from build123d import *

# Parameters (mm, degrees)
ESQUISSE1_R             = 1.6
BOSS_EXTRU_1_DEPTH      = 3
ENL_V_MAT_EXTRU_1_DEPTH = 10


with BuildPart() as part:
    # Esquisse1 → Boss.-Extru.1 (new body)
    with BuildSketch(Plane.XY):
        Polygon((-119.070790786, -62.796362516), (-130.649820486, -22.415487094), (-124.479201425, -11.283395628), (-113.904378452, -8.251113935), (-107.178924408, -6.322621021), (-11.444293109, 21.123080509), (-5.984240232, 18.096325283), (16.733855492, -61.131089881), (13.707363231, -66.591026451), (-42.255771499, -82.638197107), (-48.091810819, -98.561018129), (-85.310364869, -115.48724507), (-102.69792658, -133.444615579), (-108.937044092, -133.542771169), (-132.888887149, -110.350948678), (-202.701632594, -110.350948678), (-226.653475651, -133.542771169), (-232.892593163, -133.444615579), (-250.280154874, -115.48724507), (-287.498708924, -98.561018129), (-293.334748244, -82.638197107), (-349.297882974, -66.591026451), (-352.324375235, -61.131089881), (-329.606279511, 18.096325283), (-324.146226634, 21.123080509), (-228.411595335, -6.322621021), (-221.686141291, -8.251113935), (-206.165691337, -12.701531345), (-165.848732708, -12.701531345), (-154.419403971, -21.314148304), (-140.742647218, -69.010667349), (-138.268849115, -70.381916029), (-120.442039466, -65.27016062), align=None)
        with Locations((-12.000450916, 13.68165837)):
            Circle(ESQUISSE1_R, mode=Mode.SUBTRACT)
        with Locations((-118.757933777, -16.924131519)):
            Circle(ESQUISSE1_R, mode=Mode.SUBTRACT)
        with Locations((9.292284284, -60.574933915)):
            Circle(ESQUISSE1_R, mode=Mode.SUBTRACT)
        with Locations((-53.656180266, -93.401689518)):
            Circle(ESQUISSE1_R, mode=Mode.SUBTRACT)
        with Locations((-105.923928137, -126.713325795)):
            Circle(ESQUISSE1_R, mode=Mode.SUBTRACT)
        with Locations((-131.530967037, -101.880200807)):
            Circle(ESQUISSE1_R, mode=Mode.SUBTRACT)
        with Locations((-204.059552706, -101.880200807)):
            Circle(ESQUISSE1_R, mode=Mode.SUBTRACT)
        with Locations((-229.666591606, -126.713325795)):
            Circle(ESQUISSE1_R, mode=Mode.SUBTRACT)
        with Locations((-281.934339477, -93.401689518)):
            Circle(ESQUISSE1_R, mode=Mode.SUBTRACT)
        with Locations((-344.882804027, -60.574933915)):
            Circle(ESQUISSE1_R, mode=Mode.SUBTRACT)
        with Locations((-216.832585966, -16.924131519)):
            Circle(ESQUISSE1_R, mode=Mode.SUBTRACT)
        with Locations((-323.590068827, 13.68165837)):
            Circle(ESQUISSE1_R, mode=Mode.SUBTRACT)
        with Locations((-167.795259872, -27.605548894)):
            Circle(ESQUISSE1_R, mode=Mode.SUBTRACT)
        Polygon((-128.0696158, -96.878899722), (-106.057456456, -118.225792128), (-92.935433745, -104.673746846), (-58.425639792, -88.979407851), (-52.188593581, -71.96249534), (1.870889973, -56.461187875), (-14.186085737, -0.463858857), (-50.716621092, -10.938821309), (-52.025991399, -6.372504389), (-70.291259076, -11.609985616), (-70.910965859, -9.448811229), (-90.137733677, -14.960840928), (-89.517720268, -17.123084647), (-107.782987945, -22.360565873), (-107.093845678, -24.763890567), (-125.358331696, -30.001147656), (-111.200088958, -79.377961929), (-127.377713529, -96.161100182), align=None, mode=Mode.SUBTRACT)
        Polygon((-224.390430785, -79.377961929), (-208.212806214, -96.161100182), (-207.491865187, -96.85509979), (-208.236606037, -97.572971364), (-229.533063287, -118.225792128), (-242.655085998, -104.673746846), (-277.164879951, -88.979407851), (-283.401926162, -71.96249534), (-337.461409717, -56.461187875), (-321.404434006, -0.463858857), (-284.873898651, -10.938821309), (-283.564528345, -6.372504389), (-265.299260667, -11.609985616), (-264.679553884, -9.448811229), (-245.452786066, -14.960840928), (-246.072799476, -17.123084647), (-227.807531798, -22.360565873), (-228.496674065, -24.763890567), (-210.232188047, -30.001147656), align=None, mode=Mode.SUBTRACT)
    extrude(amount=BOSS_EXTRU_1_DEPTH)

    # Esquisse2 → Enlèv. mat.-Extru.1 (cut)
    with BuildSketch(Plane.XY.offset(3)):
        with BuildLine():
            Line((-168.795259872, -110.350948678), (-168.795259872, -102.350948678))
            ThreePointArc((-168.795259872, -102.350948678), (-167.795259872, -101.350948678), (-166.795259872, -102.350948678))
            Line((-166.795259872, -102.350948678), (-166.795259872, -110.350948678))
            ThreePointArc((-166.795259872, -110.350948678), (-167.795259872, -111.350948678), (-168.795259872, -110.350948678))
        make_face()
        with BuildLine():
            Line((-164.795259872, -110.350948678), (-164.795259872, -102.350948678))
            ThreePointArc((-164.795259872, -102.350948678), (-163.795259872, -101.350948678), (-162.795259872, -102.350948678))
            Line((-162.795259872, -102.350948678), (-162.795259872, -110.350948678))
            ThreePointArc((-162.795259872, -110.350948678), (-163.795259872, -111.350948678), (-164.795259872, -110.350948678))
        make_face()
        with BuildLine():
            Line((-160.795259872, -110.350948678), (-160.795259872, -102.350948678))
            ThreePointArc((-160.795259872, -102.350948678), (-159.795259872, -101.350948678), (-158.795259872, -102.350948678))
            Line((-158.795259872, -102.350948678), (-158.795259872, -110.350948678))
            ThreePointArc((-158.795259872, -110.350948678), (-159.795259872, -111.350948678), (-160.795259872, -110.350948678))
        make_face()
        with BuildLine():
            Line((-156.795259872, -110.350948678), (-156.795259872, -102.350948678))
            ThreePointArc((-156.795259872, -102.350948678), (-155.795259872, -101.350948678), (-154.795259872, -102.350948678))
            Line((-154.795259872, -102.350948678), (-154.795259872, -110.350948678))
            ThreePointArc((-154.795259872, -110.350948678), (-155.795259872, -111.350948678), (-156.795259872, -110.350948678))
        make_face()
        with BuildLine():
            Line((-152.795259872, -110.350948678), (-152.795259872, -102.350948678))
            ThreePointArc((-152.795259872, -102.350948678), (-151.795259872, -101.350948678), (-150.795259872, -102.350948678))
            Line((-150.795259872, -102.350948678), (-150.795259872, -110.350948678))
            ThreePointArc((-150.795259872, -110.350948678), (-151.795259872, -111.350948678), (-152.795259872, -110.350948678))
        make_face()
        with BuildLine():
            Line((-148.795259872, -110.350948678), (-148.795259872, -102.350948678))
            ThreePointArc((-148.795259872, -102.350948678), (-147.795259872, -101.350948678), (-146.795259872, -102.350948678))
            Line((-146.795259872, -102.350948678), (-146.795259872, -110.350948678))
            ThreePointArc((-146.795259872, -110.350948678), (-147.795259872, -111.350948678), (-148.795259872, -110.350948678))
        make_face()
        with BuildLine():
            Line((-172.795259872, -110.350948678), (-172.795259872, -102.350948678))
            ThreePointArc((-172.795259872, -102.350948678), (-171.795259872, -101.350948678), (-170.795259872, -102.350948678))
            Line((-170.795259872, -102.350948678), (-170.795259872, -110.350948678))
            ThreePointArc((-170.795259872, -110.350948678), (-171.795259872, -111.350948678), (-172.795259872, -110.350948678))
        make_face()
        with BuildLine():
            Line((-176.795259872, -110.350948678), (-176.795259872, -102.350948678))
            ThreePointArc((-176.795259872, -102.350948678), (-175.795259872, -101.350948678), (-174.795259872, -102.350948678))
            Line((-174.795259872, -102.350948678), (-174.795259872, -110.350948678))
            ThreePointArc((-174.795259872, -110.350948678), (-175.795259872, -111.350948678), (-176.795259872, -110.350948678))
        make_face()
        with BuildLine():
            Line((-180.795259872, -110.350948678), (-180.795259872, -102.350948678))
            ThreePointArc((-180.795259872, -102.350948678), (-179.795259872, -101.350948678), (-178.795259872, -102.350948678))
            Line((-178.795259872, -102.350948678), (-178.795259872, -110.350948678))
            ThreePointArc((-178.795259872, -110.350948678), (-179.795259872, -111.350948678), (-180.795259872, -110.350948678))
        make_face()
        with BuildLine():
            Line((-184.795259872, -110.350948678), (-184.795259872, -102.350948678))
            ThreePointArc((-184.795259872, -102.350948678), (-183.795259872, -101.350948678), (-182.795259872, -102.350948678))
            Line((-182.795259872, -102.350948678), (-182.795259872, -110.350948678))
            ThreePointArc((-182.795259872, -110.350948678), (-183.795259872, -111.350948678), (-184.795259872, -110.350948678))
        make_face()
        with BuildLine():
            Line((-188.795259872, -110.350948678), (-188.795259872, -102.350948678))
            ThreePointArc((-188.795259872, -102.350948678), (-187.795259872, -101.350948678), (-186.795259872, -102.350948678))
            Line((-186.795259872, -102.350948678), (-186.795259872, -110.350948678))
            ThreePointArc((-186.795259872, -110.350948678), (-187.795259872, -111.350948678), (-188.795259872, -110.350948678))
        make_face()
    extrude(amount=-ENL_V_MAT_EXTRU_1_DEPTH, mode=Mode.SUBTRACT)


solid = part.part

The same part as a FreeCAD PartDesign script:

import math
import FreeCAD as App
import Part
import Sketcher
from FreeCAD import Vector
Q = App.Units.Quantity


def add_polygon(sketch, points):
    """Adds a closed chain of lines whose ends are joined by coincident constraints."""
    first, n = sketch.GeometryCount, len(points)
    for a, b in zip(points, points[1:] + points[:1]):
        sketch.addGeometry(Part.LineSegment(App.Vector(*a, 0), App.Vector(*b, 0)), False)
    for i in range(n):
        sketch.addConstraint(Sketcher.Constraint("Coincident", first + i, 2, first + (i + 1) % n, 1))

doc = App.newDocument("Part")
body = doc.addObject("PartDesign::Body", "Body")

# Sketch on XY plane
sketch1 = body.newObject("Sketcher::SketchObject", "Sketch")
sketch1.AttachmentSupport = (doc.getObject("XY_Plane"), [""])
sketch1.MapMode = "FlatFace"
add_polygon(sketch1, [(-130.6, -22.4), (-119.1, -62.8), (-120.4, -65.3), (-138.3, -70.4), (-140.7, -69), (-154.4, -21.3), (-165.8, -12.7), (-206.2, -12.7), (-221.7, -8.3), (-228.4, -6.3), (-324.1, 21.1), (-329.6, 18.1), (-352.3, -61.1), (-349.3, -66.6), (-293.3, -82.6), (-287.5, -98.6), (-250.3, -115.5), (-232.9, -133.4), (-226.7, -133.5), (-202.7, -110.4), (-132.9, -110.4), (-108.9, -133.5), (-102.7, -133.4), (-85.3, -115.5), (-48.1, -98.6), (-42.3, -82.6), (13.7, -66.6), (16.7, -61.1), (-6, 18.1), (-11.4, 21.1), (-107.2, -6.3), (-113.9, -8.3), (-124.5, -11.3)])  # lines 0-32
sketch1.addGeometry(Part.Circle(Vector(-53.7, -93.4, 0), Vector(0, 0, 1), 1.6), False)  # 33
sketch1.addGeometry(Part.Circle(Vector(-105.9, -126.7, 0), Vector(0, 0, 1), 1.6), False)  # 34
sketch1.addGeometry(Part.Circle(Vector(-131.5, -101.9, 0), Vector(0, 0, 1), 1.6), False)  # 35
sketch1.addGeometry(Part.Circle(Vector(9.3, -60.6, 0), Vector(0, 0, 1), 1.6), False)  # 36
add_polygon(sketch1, [(-128.1, -96.9), (-127.4, -96.2), (-111.2, -79.4), (-125.4, -30), (-107.1, -24.8), (-107.8, -22.4), (-89.5, -17.1), (-90.1, -15), (-70.9, -9.4), (-70.3, -11.6), (-52, -6.4), (-50.7, -10.9), (-14.2, -0.5), (1.9, -56.5), (-52.2, -72), (-58.4, -89), (-92.9, -104.7), (-106.1, -118.2)])  # lines 37-54
sketch1.addGeometry(Part.Circle(Vector(-229.7, -126.7, 0), Vector(0, 0, 1), 1.6), False)  # 55
sketch1.addGeometry(Part.Circle(Vector(-204.1, -101.9, 0), Vector(0, 0, 1), 1.6), False)  # 56
sketch1.addGeometry(Part.Circle(Vector(-281.9, -93.4, 0), Vector(0, 0, 1), 1.6), False)  # 57
add_polygon(sketch1, [(-224.4, -79.4), (-208.2, -96.2), (-207.5, -96.9), (-208.2, -97.6), (-229.5, -118.2), (-242.7, -104.7), (-277.2, -89), (-283.4, -72), (-337.5, -56.5), (-321.4, -0.5), (-284.9, -10.9), (-283.6, -6.4), (-265.3, -11.6), (-264.7, -9.4), (-245.5, -15), (-246.1, -17.1), (-227.8, -22.4), (-228.5, -24.8), (-210.2, -30)])  # lines 58-76
sketch1.addGeometry(Part.Circle(Vector(-344.9, -60.6, 0), Vector(0, 0, 1), 1.6), False)  # 77
sketch1.addGeometry(Part.Circle(Vector(-12, 13.7, 0), Vector(0, 0, 1), 1.6), False)  # 78
sketch1.addGeometry(Part.Circle(Vector(-118.8, -16.9, 0), Vector(0, 0, 1), 1.6), False)  # 79
sketch1.addGeometry(Part.Circle(Vector(-167.8, -27.6, 0), Vector(0, 0, 1), 1.6), False)  # 80
sketch1.addGeometry(Part.Circle(Vector(-216.8, -16.9, 0), Vector(0, 0, 1), 1.6), False)  # 81
sketch1.addGeometry(Part.Circle(Vector(-323.6, 13.7, 0), Vector(0, 0, 1), 1.6), False)  # 82
sketch1.addConstraint([
    Sketcher.Constraint("Horizontal", 6),
    Sketcher.Constraint("Horizontal", 19),
    Sketcher.Constraint("Equal", 33, 34),
    Sketcher.Constraint("Equal", 34, 35),
    Sketcher.Constraint("Equal", 35, 36),
    Sketcher.Constraint("Equal", 36, 55),
    Sketcher.Constraint("Equal", 55, 56),
    Sketcher.Constraint("Equal", 56, 57),
    Sketcher.Constraint("Equal", 57, 77),
    Sketcher.Constraint("Equal", 77, 78),
    Sketcher.Constraint("Equal", 78, 79),
    Sketcher.Constraint("Equal", 79, 80),
    Sketcher.Constraint("Equal", 80, 81),
    Sketcher.Constraint("Equal", 81, 82),
    Sketcher.Constraint("Perpendicular", 0, 2),
    Sketcher.Constraint("Perpendicular", 1, 3),
    Sketcher.Constraint("Perpendicular", 2, 4),
    Sketcher.Constraint("Parallel", 7, 8),
    Sketcher.Constraint("Perpendicular", 8, 11),
    Sketcher.Constraint("Perpendicular", 11, 13),
    Sketcher.Constraint("Perpendicular", 16, 18),
    Sketcher.Constraint("Perpendicular", 20, 22),
    Sketcher.Constraint("Perpendicular", 4, 25),
    Sketcher.Constraint("Perpendicular", 3, 26),
    Sketcher.Constraint("Perpendicular", 25, 27),
    Sketcher.Constraint("Perpendicular", 27, 30),
    Sketcher.Constraint("Parallel", 30, 31),
    Sketcher.Constraint("Parallel", 26, 32),
    Sketcher.Constraint("Parallel", 37, 38),
    Sketcher.Constraint("Parallel", 31, 40),
    Sketcher.Constraint("Perpendicular", 40, 41),
    Sketcher.Constraint("Perpendicular", 41, 42),
    Sketcher.Constraint("Perpendicular", 42, 43),
    Sketcher.Constraint("Parallel", 29, 44),
    Sketcher.Constraint("Parallel", 43, 45),
    Sketcher.Constraint("Perpendicular", 45, 46),
    Sketcher.Constraint("Perpendicular", 46, 47),
    Sketcher.Constraint("Perpendicular", 47, 48),
    Sketcher.Constraint("Perpendicular", 48, 49),
    Sketcher.Constraint("Perpendicular", 49, 50),
    Sketcher.Constraint("Parallel", 24, 51),
    Sketcher.Constraint("Parallel", 23, 52),
    Sketcher.Constraint("Parallel", 22, 53),
    Sketcher.Constraint("Perpendicular", 58, 60),
    Sketcher.Constraint("Perpendicular", 18, 62),
    Sketcher.Constraint("Parallel", 15, 63),
    Sketcher.Constraint("Parallel", 14, 64),
    Sketcher.Constraint("Parallel", 13, 65),
    Sketcher.Constraint("Perpendicular", 65, 66),
    Sketcher.Constraint("Perpendicular", 66, 67),
    Sketcher.Constraint("Perpendicular", 67, 68),
    Sketcher.Constraint("Perpendicular", 68, 69),
    Sketcher.Constraint("Perpendicular", 69, 70),
    Sketcher.Constraint("Parallel", 9, 71),
    Sketcher.Constraint("Parallel", 70, 72),
    Sketcher.Constraint("Perpendicular", 72, 73),
    Sketcher.Constraint("Perpendicular", 73, 74),
    Sketcher.Constraint("Perpendicular", 74, 75),
    Sketcher.Constraint("Horizontal", 34, 3, 55, 3),
    Sketcher.Constraint("Horizontal", 35, 3, 56, 3),
    Sketcher.Constraint("Horizontal", 33, 3, 57, 3),
    Sketcher.Constraint("Horizontal", 36, 3, 77, 3),
    Sketcher.Constraint("Horizontal", 79, 3, 81, 3),
    Sketcher.Constraint("Horizontal", 78, 3, 82, 3),
    Sketcher.Constraint("Horizontal", 17, 2, 20, 2),
    Sketcher.Constraint("Horizontal", 16, 2, 21, 2),
    Sketcher.Constraint("Horizontal", 15, 2, 22, 2),
    Sketcher.Constraint("Horizontal", 14, 2, 23, 2),
    Sketcher.Constraint("Horizontal", 13, 2, 24, 2),
    Sketcher.Constraint("Horizontal", 12, 2, 25, 2),
    Sketcher.Constraint("Horizontal", 11, 2, 26, 2),
    Sketcher.Constraint("Horizontal", 10, 2, 27, 2),
    Sketcher.Constraint("Horizontal", 9, 2, 28, 2),
    Sketcher.Constraint("Horizontal", 8, 2, 29, 2),
    Sketcher.Constraint("Horizontal", 7, 2, 30, 2),
    Sketcher.Constraint("Horizontal", 37, 2, 58, 2),
    Sketcher.Constraint("Horizontal", 53, 2, 61, 2),
    Sketcher.Constraint("Horizontal", 52, 2, 62, 2),
    Sketcher.Constraint("Horizontal", 51, 2, 63, 2),
    Sketcher.Constraint("Horizontal", 50, 2, 64, 2),
    Sketcher.Constraint("Horizontal", 49, 2, 65, 2),
    Sketcher.Constraint("Horizontal", 48, 2, 66, 2),
    Sketcher.Constraint("Horizontal", 47, 2, 67, 2),
    Sketcher.Constraint("Horizontal", 46, 2, 68, 2),
    Sketcher.Constraint("Horizontal", 45, 2, 69, 2),
    Sketcher.Constraint("Horizontal", 44, 2, 70, 2),
    Sketcher.Constraint("Horizontal", 43, 2, 71, 2),
    Sketcher.Constraint("Horizontal", 42, 2, 72, 2),
    Sketcher.Constraint("Horizontal", 41, 2, 73, 2),
    Sketcher.Constraint("Horizontal", 40, 2, 74, 2),
    Sketcher.Constraint("Horizontal", 39, 2, 75, 2),
    Sketcher.Constraint("Horizontal", 38, 2, 76, 2),
    Sketcher.Constraint("Equal", 1, 3),
    Sketcher.Constraint("Equal", 18, 20),
    Sketcher.Constraint("Equal", 17, 21),
    Sketcher.Constraint("Equal", 15, 23),
    Sketcher.Constraint("Equal", 14, 24),
    Sketcher.Constraint("Equal", 13, 25),
    Sketcher.Constraint("Equal", 12, 26),
    Sketcher.Constraint("Equal", 10, 28),
    Sketcher.Constraint("Equal", 9, 29),
    Sketcher.Constraint("Equal", 42, 46),
    Sketcher.Constraint("Equal", 38, 58),
    Sketcher.Constraint("Equal", 39, 76),
    Sketcher.Constraint("Diameter", 33, Q("3.2 mm")),
    Sketcher.Constraint("Angle", 0, Q("-74 deg")),
    Sketcher.Constraint("Angle", 1, Q("-119 deg")),
    Sketcher.Constraint("Angle", 5, Q("143 deg")),
    Sketcher.Constraint("Distance", 0, Q("42.008202 mm")),
    Sketcher.Constraint("DistanceX", 6, 2, 6, 1, Q("40.316959 mm")),
    Sketcher.Constraint("DistanceY", 35, 3, -1, 1, Q("101.880201 mm")),
    Sketcher.Constraint("DistanceX", 31, 2, -1, 1, Q("124.479201 mm")),
    Sketcher.Constraint("DistanceY", 37, 2, -1, 1, Q("96.1611 mm")),
    Sketcher.Constraint("DistanceY", 54, 2, -1, 1, Q("96.8789 mm")),
    Sketcher.Constraint("DistanceY", 59, 2, -1, 1, Q("96.8551 mm")),
    Sketcher.Constraint("DistanceX", 67, 2, -1, 1, Q("284.873899 mm")),
    Sketcher.Constraint("DistanceX", 72, 2, -1, 1, Q("246.072799 mm")),
    Sketcher.Constraint("Distance", 2, Q("18.54522 mm")),
    Sketcher.Constraint("Distance", 4, Q("49.618662 mm")),
    Sketcher.Constraint("Distance", 5, Q("14.31107 mm")),
    Sketcher.Constraint("Distance", 10, Q("6.24287 mm")),
    Sketcher.Constraint("Distance", 12, Q("6.242641 mm")),
    Sketcher.Constraint("Distance", 16, Q("24.995889 mm")),
    Sketcher.Constraint("Distance", 17, Q("6.23989 mm")),
    Sketcher.Constraint("Distance", 38, Q("23.310711 mm")),
    Sketcher.Constraint("Distance", 39, Q("51.366581 mm")),
    Sketcher.Constraint("Distance", 43, Q("2.249381 mm")),
    Sketcher.Constraint("Distance", 45, Q("2.248268 mm")),
    Sketcher.Constraint("Distance", 49, Q("58.25399 mm")),
    Sketcher.Constraint("Distance", 50, Q("56.23805 mm")),
    Sketcher.Constraint("Distance", 51, Q("18.123908 mm")),
    Sketcher.Constraint("Distance", 54, Q("30.663088 mm")),
    Sketcher.Constraint("Distance", 61, Q("29.66611 mm")),
    Sketcher.Constraint("DistanceX", 19, 1, 19, 2, Q("69.812745 mm")),
    Sketcher.Constraint("DistanceX", 33, 3, -1, 1, Q("53.65618 mm")),
    Sketcher.Constraint("DistanceY", 33, 3, -1, 1, Q("93.40169 mm")),
    Sketcher.Constraint("DistanceX", 34, 3, -1, 1, Q("105.923928 mm")),
    Sketcher.Constraint("DistanceX", 55, 3, -1, 1, Q("229.666592 mm")),
    Sketcher.Constraint("DistanceX", 57, 3, -1, 1, Q("281.934339 mm")),
    Sketcher.Constraint("DistanceX", 78, 3, -1, 1, Q("12.000451 mm")),
    Sketcher.Constraint("DistanceY", -1, 1, 78, 3, Q("13.681658 mm")),
    Sketcher.Constraint("DistanceY", 79, 3, -1, 1, Q("16.924132 mm")),
    Sketcher.Constraint("DistanceX", 80, 3, -1, 1, Q("167.79526 mm")),
    Sketcher.Constraint("DistanceY", 80, 3, -1, 1, Q("27.605549 mm")),
    Sketcher.Constraint("DistanceX", 82, 3, -1, 1, Q("323.590069 mm")),
    Sketcher.Constraint("DistanceX", 0, 2, -1, 1, Q("119.070791 mm")),
    Sketcher.Constraint("DistanceX", 1, 2, -1, 1, Q("120.442039 mm")),
    Sketcher.Constraint("DistanceY", 1, 2, -1, 1, Q("65.270161 mm")),
    Sketcher.Constraint("DistanceX", 7, 2, -1, 1, Q("221.686141 mm")),
    Sketcher.Constraint("DistanceY", 8, 2, -1, 1, Q("6.322621 mm")),
    Sketcher.Constraint("DistanceY", -1, 1, 9, 2, Q("21.123081 mm")),
    Sketcher.Constraint("DistanceX", 10, 2, -1, 1, Q("329.60628 mm")),
    Sketcher.Constraint("DistanceY", 11, 2, -1, 1, Q("61.13109 mm")),
    Sketcher.Constraint("DistanceX", 13, 2, -1, 1, Q("293.334748 mm")),
    Sketcher.Constraint("DistanceX", 14, 2, -1, 1, Q("287.498709 mm")),
    Sketcher.Constraint("DistanceY", 14, 2, -1, 1, Q("98.561018 mm")),
    Sketcher.Constraint("DistanceY", 17, 2, -1, 1, Q("133.542771 mm")),
    Sketcher.Constraint("DistanceY", 18, 2, -1, 1, Q("110.350949 mm")),
    Sketcher.Constraint("DistanceX", 38, 2, -1, 1, Q("111.200089 mm")),
    Sketcher.Constraint("DistanceY", 38, 2, -1, 1, Q("79.377962 mm")),
    Sketcher.Constraint("DistanceX", 39, 2, -1, 1, Q("125.358332 mm")),
    Sketcher.Constraint("DistanceY", 40, 2, -1, 1, Q("24.763891 mm")),
    Sketcher.Constraint("DistanceX", 42, 2, -1, 1, Q("89.51772 mm")),
    Sketcher.Constraint("DistanceY", 43, 2, -1, 1, Q("14.960841 mm")),
    Sketcher.Constraint("DistanceY", 44, 2, -1, 1, Q("9.448811 mm")),
    Sketcher.Constraint("DistanceX", 45, 2, -1, 1, Q("70.291259 mm")),
    Sketcher.Constraint("DistanceY", 48, 2, -1, 1, Q("0.463859 mm")),
    Sketcher.Constraint("DistanceY", 60, 2, -1, 1, Q("97.572971 mm")),
    Sketcher.Constraint("Distance", 15, Q("40.886647 mm")),
    Sketcher.Constraint("Distance", 18, Q("33.339937 mm")),
    Sketcher.Constraint("Distance", 53, Q("18.863865 mm")),
    Sketcher.Constraint("DistanceY", 34, 3, -1, 1, Q("126.713326 mm")),
    Sketcher.Constraint("DistanceX", 35, 3, -1, 1, Q("131.530967 mm")),
    Sketcher.Constraint("DistanceX", -1, 1, 36, 3, Q("9.292284 mm")),
    Sketcher.Constraint("DistanceY", 36, 3, -1, 1, Q("60.574934 mm")),
    Sketcher.Constraint("DistanceX", 56, 3, -1, 1, Q("204.059553 mm")),
    Sketcher.Constraint("DistanceX", 77, 3, -1, 1, Q("344.882804 mm")),
    Sketcher.Constraint("DistanceX", 79, 3, -1, 1, Q("118.757934 mm")),
    Sketcher.Constraint("DistanceX", 81, 3, -1, 1, Q("216.832586 mm")),
])
pad1 = body.newObject("PartDesign::Pad", "Pad")
pad1.Profile = sketch1
pad1.Length = 3

# Sketch on XY plane
sketch2 = body.newObject("Sketcher::SketchObject", "Sketch001")
sketch2.AttachmentSupport = (doc.getObject("XY_Plane"), [""])
sketch2.MapMode = "FlatFace"
sketch2.AttachmentOffset = App.Placement(Vector(0, 0, 3), App.Rotation())
sketch2.addGeometry([
    Part.LineSegment(Vector(-168.8, -102.4, 0), Vector(-168.8, -110.4, 0)),  # 0
    Part.ArcOfCircle(Part.Circle(Vector(-167.8, -110.4, 0), Vector(0, 0, 1), 1), math.radians(180), math.radians(360)),  # 1
    Part.LineSegment(Vector(-166.8, -110.4, 0), Vector(-166.8, -102.4, 0)),  # 2
    Part.ArcOfCircle(Part.Circle(Vector(-167.8, -102.4, 0), Vector(0, 0, 1), 1), math.radians(0), math.radians(180)),  # 3
    Part.LineSegment(Vector(-164.8, -102.4, 0), Vector(-164.8, -110.4, 0)),  # 4
    Part.ArcOfCircle(Part.Circle(Vector(-163.8, -110.4, 0), Vector(0, 0, 1), 1), math.radians(180), math.radians(360)),  # 5
    Part.LineSegment(Vector(-162.8, -110.4, 0), Vector(-162.8, -102.4, 0)),  # 6
    Part.ArcOfCircle(Part.Circle(Vector(-163.8, -102.4, 0), Vector(0, 0, 1), 1), math.radians(0), math.radians(180)),  # 7
    Part.LineSegment(Vector(-160.8, -102.4, 0), Vector(-160.8, -110.4, 0)),  # 8
    Part.ArcOfCircle(Part.Circle(Vector(-159.8, -110.4, 0), Vector(0, 0, 1), 1), math.radians(180), math.radians(360)),  # 9
    Part.LineSegment(Vector(-158.8, -110.4, 0), Vector(-158.8, -102.4, 0)),  # 10
    Part.ArcOfCircle(Part.Circle(Vector(-159.8, -102.4, 0), Vector(0, 0, 1), 1), math.radians(0), math.radians(180)),  # 11
    Part.LineSegment(Vector(-156.8, -102.4, 0), Vector(-156.8, -110.4, 0)),  # 12
    Part.ArcOfCircle(Part.Circle(Vector(-155.8, -110.4, 0), Vector(0, 0, 1), 1), math.radians(180), math.radians(360)),  # 13
    Part.LineSegment(Vector(-154.8, -110.4, 0), Vector(-154.8, -102.4, 0)),  # 14
    Part.ArcOfCircle(Part.Circle(Vector(-155.8, -102.4, 0), Vector(0, 0, 1), 1), math.radians(0), math.radians(180)),  # 15
    Part.LineSegment(Vector(-152.8, -102.4, 0), Vector(-152.8, -110.4, 0)),  # 16
    Part.ArcOfCircle(Part.Circle(Vector(-151.8, -110.4, 0), Vector(0, 0, 1), 1), math.radians(180), math.radians(360)),  # 17
    Part.LineSegment(Vector(-150.8, -110.4, 0), Vector(-150.8, -102.4, 0)),  # 18
    Part.ArcOfCircle(Part.Circle(Vector(-151.8, -102.4, 0), Vector(0, 0, 1), 1), math.radians(0), math.radians(180)),  # 19
    Part.LineSegment(Vector(-148.8, -102.4, 0), Vector(-148.8, -110.4, 0)),  # 20
    Part.ArcOfCircle(Part.Circle(Vector(-147.8, -110.4, 0), Vector(0, 0, 1), 1), math.radians(180), math.radians(360)),  # 21
    Part.LineSegment(Vector(-146.8, -110.4, 0), Vector(-146.8, -102.4, 0)),  # 22
    Part.ArcOfCircle(Part.Circle(Vector(-147.8, -102.4, 0), Vector(0, 0, 1), 1), math.radians(0), math.radians(180)),  # 23
    Part.LineSegment(Vector(-172.8, -102.4, 0), Vector(-172.8, -110.4, 0)),  # 24
    Part.ArcOfCircle(Part.Circle(Vector(-171.8, -110.4, 0), Vector(0, 0, 1), 1), math.radians(180), math.radians(360)),  # 25
    Part.LineSegment(Vector(-170.8, -110.4, 0), Vector(-170.8, -102.4, 0)),  # 26
    Part.ArcOfCircle(Part.Circle(Vector(-171.8, -102.4, 0), Vector(0, 0, 1), 1), math.radians(0), math.radians(180)),  # 27
    Part.LineSegment(Vector(-176.8, -102.4, 0), Vector(-176.8, -110.4, 0)),  # 28
    Part.ArcOfCircle(Part.Circle(Vector(-175.8, -110.4, 0), Vector(0, 0, 1), 1), math.radians(180), math.radians(360)),  # 29
    Part.LineSegment(Vector(-174.8, -110.4, 0), Vector(-174.8, -102.4, 0)),  # 30
    Part.ArcOfCircle(Part.Circle(Vector(-175.8, -102.4, 0), Vector(0, 0, 1), 1), math.radians(0), math.radians(180)),  # 31
    Part.LineSegment(Vector(-180.8, -102.4, 0), Vector(-180.8, -110.4, 0)),  # 32
    Part.ArcOfCircle(Part.Circle(Vector(-179.8, -110.4, 0), Vector(0, 0, 1), 1), math.radians(180), math.radians(360)),  # 33
    Part.LineSegment(Vector(-178.8, -110.4, 0), Vector(-178.8, -102.4, 0)),  # 34
    Part.ArcOfCircle(Part.Circle(Vector(-179.8, -102.4, 0), Vector(0, 0, 1), 1), math.radians(0), math.radians(180)),  # 35
    Part.LineSegment(Vector(-184.8, -102.4, 0), Vector(-184.8, -110.4, 0)),  # 36
    Part.ArcOfCircle(Part.Circle(Vector(-183.8, -110.4, 0), Vector(0, 0, 1), 1), math.radians(180), math.radians(360)),  # 37
    Part.LineSegment(Vector(-182.8, -110.4, 0), Vector(-182.8, -102.4, 0)),  # 38
    Part.ArcOfCircle(Part.Circle(Vector(-183.8, -102.4, 0), Vector(0, 0, 1), 1), math.radians(0), math.radians(180)),  # 39
    Part.LineSegment(Vector(-188.8, -102.4, 0), Vector(-188.8, -110.4, 0)),  # 40
    Part.ArcOfCircle(Part.Circle(Vector(-187.8, -110.4, 0), Vector(0, 0, 1), 1), math.radians(180), math.radians(360)),  # 41
    Part.LineSegment(Vector(-186.8, -110.4, 0), Vector(-186.8, -102.4, 0)),  # 42
    Part.ArcOfCircle(Part.Circle(Vector(-187.8, -102.4, 0), Vector(0, 0, 1), 1), math.radians(0), math.radians(180)),  # 43
], False)
sketch2.addConstraint([
    Sketcher.Constraint("Tangent", 0, 2, 1, 1),
    Sketcher.Constraint("Tangent", 1, 2, 2, 1),
    Sketcher.Constraint("Tangent", 2, 2, 3, 1),
    Sketcher.Constraint("Tangent", 3, 2, 0, 1),
    Sketcher.Constraint("Tangent", 4, 2, 5, 1),
    Sketcher.Constraint("Tangent", 5, 2, 6, 1),
    Sketcher.Constraint("Tangent", 6, 2, 7, 1),
    Sketcher.Constraint("Tangent", 7, 2, 4, 1),
    Sketcher.Constraint("Tangent", 8, 2, 9, 1),
    Sketcher.Constraint("Tangent", 9, 2, 10, 1),
    Sketcher.Constraint("Tangent", 10, 2, 11, 1),
    Sketcher.Constraint("Tangent", 11, 2, 8, 1),
    Sketcher.Constraint("Tangent", 12, 2, 13, 1),
    Sketcher.Constraint("Tangent", 13, 2, 14, 1),
    Sketcher.Constraint("Tangent", 14, 2, 15, 1),
    Sketcher.Constraint("Tangent", 15, 2, 12, 1),
    Sketcher.Constraint("Tangent", 16, 2, 17, 1),
    Sketcher.Constraint("Tangent", 17, 2, 18, 1),
    Sketcher.Constraint("Tangent", 18, 2, 19, 1),
    Sketcher.Constraint("Tangent", 19, 2, 16, 1),
    Sketcher.Constraint("Tangent", 20, 2, 21, 1),
    Sketcher.Constraint("Tangent", 21, 2, 22, 1),
    Sketcher.Constraint("Tangent", 22, 2, 23, 1),
    Sketcher.Constraint("Tangent", 23, 2, 20, 1),
    Sketcher.Constraint("Tangent", 24, 2, 25, 1),
    Sketcher.Constraint("Tangent", 25, 2, 26, 1),
    Sketcher.Constraint("Tangent", 26, 2, 27, 1),
    Sketcher.Constraint("Tangent", 27, 2, 24, 1),
    Sketcher.Constraint("Tangent", 28, 2, 29, 1),
    Sketcher.Constraint("Tangent", 29, 2, 30, 1),
    Sketcher.Constraint("Tangent", 30, 2, 31, 1),
    Sketcher.Constraint("Tangent", 31, 2, 28, 1),
    Sketcher.Constraint("Tangent", 32, 2, 33, 1),
    Sketcher.Constraint("Tangent", 33, 2, 34, 1),
    Sketcher.Constraint("Tangent", 34, 2, 35, 1),
    Sketcher.Constraint("Tangent", 35, 2, 32, 1),
    Sketcher.Constraint("Tangent", 36, 2, 37, 1),
    Sketcher.Constraint("Tangent", 37, 2, 38, 1),
    Sketcher.Constraint("Tangent", 38, 2, 39, 1),
    Sketcher.Constraint("Tangent", 39, 2, 36, 1),
    Sketcher.Constraint("Tangent", 40, 2, 41, 1),
    Sketcher.Constraint("Tangent", 41, 2, 42, 1),
    Sketcher.Constraint("Tangent", 42, 2, 43, 1),
    Sketcher.Constraint("Tangent", 43, 2, 40, 1),
    Sketcher.Constraint("Vertical", 0),
    Sketcher.Constraint("Vertical", 2),
    Sketcher.Constraint("Vertical", 4),
    Sketcher.Constraint("Vertical", 6),
    Sketcher.Constraint("Vertical", 8),
    Sketcher.Constraint("Vertical", 10),
    Sketcher.Constraint("Vertical", 12),
    Sketcher.Constraint("Vertical", 14),
    Sketcher.Constraint("Vertical", 16),
    Sketcher.Constraint("Vertical", 18),
    Sketcher.Constraint("Vertical", 20),
    Sketcher.Constraint("Vertical", 22),
    Sketcher.Constraint("Vertical", 24),
    Sketcher.Constraint("Vertical", 26),
    Sketcher.Constraint("Vertical", 28),
    Sketcher.Constraint("Vertical", 30),
    Sketcher.Constraint("Vertical", 32),
    Sketcher.Constraint("Vertical", 34),
    Sketcher.Constraint("Vertical", 36),
    Sketcher.Constraint("Vertical", 38),
    Sketcher.Constraint("Vertical", 40),
    Sketcher.Constraint("Vertical", 42),
    Sketcher.Constraint("Equal", 3, 5),
    Sketcher.Constraint("Equal", 7, 9),
    Sketcher.Constraint("Equal", 11, 13),
    Sketcher.Constraint("Equal", 15, 17),
    Sketcher.Constraint("Equal", 19, 21),
    Sketcher.Constraint("Equal", 23, 25),
    Sketcher.Constraint("Equal", 27, 29),
    Sketcher.Constraint("Equal", 31, 33),
    Sketcher.Constraint("Equal", 35, 37),
    Sketcher.Constraint("Equal", 39, 41),
    Sketcher.Constraint("Horizontal", 1, 3, 5, 3),
    Sketcher.Constraint("Horizontal", 3, 3, 7, 3),
    Sketcher.Constraint("Horizontal", 5, 3, 9, 3),
    Sketcher.Constraint("Horizontal", 7, 3, 11, 3),
    Sketcher.Constraint("Horizontal", 9, 3, 13, 3),
    Sketcher.Constraint("Horizontal", 11, 3, 15, 3),
    Sketcher.Constraint("Horizontal", 13, 3, 17, 3),
    Sketcher.Constraint("Horizontal", 15, 3, 19, 3),
    Sketcher.Constraint("Horizontal", 17, 3, 21, 3),
    Sketcher.Constraint("Horizontal", 19, 3, 23, 3),
    Sketcher.Constraint("Horizontal", 21, 3, 25, 3),
    Sketcher.Constraint("Horizontal", 23, 3, 27, 3),
    Sketcher.Constraint("Horizontal", 25, 3, 29, 3),
    Sketcher.Constraint("Horizontal", 27, 3, 31, 3),
    Sketcher.Constraint("Horizontal", 29, 3, 33, 3),
    Sketcher.Constraint("Horizontal", 31, 3, 35, 3),
    Sketcher.Constraint("Horizontal", 33, 3, 37, 3),
    Sketcher.Constraint("Horizontal", 35, 3, 39, 3),
    Sketcher.Constraint("Horizontal", 37, 3, 41, 3),
    Sketcher.Constraint("Horizontal", 39, 3, 43, 3),
    Sketcher.Constraint("Radius", 1, Q("1 mm")),
    Sketcher.Constraint("DistanceY", 0, 2, 0, 1, Q("8 mm")),
    Sketcher.Constraint("DistanceX", 1, 3, -1, 1, Q("167.79526 mm")),
    Sketcher.Constraint("DistanceY", 1, 3, -1, 1, Q("110.350949 mm")),
    Sketcher.Constraint("DistanceX", 5, 3, -1, 1, Q("163.79526 mm")),
    Sketcher.Constraint("DistanceX", 9, 3, -1, 1, Q("159.79526 mm")),
    Sketcher.Constraint("DistanceX", 13, 3, -1, 1, Q("155.79526 mm")),
    Sketcher.Constraint("DistanceX", 17, 3, -1, 1, Q("151.79526 mm")),
    Sketcher.Constraint("DistanceX", 21, 3, -1, 1, Q("147.79526 mm")),
    Sketcher.Constraint("DistanceX", 25, 3, -1, 1, Q("171.79526 mm")),
    Sketcher.Constraint("DistanceX", 29, 3, -1, 1, Q("175.79526 mm")),
    Sketcher.Constraint("DistanceX", 33, 3, -1, 1, Q("179.79526 mm")),
    Sketcher.Constraint("DistanceX", 37, 3, -1, 1, Q("183.79526 mm")),
    Sketcher.Constraint("DistanceX", 41, 3, -1, 1, Q("187.79526 mm")),
])
pocket1 = body.newObject("PartDesign::Pocket", "Pocket")
pocket1.Profile = sketch2
pocket1.Length = 10

doc.recompute()
